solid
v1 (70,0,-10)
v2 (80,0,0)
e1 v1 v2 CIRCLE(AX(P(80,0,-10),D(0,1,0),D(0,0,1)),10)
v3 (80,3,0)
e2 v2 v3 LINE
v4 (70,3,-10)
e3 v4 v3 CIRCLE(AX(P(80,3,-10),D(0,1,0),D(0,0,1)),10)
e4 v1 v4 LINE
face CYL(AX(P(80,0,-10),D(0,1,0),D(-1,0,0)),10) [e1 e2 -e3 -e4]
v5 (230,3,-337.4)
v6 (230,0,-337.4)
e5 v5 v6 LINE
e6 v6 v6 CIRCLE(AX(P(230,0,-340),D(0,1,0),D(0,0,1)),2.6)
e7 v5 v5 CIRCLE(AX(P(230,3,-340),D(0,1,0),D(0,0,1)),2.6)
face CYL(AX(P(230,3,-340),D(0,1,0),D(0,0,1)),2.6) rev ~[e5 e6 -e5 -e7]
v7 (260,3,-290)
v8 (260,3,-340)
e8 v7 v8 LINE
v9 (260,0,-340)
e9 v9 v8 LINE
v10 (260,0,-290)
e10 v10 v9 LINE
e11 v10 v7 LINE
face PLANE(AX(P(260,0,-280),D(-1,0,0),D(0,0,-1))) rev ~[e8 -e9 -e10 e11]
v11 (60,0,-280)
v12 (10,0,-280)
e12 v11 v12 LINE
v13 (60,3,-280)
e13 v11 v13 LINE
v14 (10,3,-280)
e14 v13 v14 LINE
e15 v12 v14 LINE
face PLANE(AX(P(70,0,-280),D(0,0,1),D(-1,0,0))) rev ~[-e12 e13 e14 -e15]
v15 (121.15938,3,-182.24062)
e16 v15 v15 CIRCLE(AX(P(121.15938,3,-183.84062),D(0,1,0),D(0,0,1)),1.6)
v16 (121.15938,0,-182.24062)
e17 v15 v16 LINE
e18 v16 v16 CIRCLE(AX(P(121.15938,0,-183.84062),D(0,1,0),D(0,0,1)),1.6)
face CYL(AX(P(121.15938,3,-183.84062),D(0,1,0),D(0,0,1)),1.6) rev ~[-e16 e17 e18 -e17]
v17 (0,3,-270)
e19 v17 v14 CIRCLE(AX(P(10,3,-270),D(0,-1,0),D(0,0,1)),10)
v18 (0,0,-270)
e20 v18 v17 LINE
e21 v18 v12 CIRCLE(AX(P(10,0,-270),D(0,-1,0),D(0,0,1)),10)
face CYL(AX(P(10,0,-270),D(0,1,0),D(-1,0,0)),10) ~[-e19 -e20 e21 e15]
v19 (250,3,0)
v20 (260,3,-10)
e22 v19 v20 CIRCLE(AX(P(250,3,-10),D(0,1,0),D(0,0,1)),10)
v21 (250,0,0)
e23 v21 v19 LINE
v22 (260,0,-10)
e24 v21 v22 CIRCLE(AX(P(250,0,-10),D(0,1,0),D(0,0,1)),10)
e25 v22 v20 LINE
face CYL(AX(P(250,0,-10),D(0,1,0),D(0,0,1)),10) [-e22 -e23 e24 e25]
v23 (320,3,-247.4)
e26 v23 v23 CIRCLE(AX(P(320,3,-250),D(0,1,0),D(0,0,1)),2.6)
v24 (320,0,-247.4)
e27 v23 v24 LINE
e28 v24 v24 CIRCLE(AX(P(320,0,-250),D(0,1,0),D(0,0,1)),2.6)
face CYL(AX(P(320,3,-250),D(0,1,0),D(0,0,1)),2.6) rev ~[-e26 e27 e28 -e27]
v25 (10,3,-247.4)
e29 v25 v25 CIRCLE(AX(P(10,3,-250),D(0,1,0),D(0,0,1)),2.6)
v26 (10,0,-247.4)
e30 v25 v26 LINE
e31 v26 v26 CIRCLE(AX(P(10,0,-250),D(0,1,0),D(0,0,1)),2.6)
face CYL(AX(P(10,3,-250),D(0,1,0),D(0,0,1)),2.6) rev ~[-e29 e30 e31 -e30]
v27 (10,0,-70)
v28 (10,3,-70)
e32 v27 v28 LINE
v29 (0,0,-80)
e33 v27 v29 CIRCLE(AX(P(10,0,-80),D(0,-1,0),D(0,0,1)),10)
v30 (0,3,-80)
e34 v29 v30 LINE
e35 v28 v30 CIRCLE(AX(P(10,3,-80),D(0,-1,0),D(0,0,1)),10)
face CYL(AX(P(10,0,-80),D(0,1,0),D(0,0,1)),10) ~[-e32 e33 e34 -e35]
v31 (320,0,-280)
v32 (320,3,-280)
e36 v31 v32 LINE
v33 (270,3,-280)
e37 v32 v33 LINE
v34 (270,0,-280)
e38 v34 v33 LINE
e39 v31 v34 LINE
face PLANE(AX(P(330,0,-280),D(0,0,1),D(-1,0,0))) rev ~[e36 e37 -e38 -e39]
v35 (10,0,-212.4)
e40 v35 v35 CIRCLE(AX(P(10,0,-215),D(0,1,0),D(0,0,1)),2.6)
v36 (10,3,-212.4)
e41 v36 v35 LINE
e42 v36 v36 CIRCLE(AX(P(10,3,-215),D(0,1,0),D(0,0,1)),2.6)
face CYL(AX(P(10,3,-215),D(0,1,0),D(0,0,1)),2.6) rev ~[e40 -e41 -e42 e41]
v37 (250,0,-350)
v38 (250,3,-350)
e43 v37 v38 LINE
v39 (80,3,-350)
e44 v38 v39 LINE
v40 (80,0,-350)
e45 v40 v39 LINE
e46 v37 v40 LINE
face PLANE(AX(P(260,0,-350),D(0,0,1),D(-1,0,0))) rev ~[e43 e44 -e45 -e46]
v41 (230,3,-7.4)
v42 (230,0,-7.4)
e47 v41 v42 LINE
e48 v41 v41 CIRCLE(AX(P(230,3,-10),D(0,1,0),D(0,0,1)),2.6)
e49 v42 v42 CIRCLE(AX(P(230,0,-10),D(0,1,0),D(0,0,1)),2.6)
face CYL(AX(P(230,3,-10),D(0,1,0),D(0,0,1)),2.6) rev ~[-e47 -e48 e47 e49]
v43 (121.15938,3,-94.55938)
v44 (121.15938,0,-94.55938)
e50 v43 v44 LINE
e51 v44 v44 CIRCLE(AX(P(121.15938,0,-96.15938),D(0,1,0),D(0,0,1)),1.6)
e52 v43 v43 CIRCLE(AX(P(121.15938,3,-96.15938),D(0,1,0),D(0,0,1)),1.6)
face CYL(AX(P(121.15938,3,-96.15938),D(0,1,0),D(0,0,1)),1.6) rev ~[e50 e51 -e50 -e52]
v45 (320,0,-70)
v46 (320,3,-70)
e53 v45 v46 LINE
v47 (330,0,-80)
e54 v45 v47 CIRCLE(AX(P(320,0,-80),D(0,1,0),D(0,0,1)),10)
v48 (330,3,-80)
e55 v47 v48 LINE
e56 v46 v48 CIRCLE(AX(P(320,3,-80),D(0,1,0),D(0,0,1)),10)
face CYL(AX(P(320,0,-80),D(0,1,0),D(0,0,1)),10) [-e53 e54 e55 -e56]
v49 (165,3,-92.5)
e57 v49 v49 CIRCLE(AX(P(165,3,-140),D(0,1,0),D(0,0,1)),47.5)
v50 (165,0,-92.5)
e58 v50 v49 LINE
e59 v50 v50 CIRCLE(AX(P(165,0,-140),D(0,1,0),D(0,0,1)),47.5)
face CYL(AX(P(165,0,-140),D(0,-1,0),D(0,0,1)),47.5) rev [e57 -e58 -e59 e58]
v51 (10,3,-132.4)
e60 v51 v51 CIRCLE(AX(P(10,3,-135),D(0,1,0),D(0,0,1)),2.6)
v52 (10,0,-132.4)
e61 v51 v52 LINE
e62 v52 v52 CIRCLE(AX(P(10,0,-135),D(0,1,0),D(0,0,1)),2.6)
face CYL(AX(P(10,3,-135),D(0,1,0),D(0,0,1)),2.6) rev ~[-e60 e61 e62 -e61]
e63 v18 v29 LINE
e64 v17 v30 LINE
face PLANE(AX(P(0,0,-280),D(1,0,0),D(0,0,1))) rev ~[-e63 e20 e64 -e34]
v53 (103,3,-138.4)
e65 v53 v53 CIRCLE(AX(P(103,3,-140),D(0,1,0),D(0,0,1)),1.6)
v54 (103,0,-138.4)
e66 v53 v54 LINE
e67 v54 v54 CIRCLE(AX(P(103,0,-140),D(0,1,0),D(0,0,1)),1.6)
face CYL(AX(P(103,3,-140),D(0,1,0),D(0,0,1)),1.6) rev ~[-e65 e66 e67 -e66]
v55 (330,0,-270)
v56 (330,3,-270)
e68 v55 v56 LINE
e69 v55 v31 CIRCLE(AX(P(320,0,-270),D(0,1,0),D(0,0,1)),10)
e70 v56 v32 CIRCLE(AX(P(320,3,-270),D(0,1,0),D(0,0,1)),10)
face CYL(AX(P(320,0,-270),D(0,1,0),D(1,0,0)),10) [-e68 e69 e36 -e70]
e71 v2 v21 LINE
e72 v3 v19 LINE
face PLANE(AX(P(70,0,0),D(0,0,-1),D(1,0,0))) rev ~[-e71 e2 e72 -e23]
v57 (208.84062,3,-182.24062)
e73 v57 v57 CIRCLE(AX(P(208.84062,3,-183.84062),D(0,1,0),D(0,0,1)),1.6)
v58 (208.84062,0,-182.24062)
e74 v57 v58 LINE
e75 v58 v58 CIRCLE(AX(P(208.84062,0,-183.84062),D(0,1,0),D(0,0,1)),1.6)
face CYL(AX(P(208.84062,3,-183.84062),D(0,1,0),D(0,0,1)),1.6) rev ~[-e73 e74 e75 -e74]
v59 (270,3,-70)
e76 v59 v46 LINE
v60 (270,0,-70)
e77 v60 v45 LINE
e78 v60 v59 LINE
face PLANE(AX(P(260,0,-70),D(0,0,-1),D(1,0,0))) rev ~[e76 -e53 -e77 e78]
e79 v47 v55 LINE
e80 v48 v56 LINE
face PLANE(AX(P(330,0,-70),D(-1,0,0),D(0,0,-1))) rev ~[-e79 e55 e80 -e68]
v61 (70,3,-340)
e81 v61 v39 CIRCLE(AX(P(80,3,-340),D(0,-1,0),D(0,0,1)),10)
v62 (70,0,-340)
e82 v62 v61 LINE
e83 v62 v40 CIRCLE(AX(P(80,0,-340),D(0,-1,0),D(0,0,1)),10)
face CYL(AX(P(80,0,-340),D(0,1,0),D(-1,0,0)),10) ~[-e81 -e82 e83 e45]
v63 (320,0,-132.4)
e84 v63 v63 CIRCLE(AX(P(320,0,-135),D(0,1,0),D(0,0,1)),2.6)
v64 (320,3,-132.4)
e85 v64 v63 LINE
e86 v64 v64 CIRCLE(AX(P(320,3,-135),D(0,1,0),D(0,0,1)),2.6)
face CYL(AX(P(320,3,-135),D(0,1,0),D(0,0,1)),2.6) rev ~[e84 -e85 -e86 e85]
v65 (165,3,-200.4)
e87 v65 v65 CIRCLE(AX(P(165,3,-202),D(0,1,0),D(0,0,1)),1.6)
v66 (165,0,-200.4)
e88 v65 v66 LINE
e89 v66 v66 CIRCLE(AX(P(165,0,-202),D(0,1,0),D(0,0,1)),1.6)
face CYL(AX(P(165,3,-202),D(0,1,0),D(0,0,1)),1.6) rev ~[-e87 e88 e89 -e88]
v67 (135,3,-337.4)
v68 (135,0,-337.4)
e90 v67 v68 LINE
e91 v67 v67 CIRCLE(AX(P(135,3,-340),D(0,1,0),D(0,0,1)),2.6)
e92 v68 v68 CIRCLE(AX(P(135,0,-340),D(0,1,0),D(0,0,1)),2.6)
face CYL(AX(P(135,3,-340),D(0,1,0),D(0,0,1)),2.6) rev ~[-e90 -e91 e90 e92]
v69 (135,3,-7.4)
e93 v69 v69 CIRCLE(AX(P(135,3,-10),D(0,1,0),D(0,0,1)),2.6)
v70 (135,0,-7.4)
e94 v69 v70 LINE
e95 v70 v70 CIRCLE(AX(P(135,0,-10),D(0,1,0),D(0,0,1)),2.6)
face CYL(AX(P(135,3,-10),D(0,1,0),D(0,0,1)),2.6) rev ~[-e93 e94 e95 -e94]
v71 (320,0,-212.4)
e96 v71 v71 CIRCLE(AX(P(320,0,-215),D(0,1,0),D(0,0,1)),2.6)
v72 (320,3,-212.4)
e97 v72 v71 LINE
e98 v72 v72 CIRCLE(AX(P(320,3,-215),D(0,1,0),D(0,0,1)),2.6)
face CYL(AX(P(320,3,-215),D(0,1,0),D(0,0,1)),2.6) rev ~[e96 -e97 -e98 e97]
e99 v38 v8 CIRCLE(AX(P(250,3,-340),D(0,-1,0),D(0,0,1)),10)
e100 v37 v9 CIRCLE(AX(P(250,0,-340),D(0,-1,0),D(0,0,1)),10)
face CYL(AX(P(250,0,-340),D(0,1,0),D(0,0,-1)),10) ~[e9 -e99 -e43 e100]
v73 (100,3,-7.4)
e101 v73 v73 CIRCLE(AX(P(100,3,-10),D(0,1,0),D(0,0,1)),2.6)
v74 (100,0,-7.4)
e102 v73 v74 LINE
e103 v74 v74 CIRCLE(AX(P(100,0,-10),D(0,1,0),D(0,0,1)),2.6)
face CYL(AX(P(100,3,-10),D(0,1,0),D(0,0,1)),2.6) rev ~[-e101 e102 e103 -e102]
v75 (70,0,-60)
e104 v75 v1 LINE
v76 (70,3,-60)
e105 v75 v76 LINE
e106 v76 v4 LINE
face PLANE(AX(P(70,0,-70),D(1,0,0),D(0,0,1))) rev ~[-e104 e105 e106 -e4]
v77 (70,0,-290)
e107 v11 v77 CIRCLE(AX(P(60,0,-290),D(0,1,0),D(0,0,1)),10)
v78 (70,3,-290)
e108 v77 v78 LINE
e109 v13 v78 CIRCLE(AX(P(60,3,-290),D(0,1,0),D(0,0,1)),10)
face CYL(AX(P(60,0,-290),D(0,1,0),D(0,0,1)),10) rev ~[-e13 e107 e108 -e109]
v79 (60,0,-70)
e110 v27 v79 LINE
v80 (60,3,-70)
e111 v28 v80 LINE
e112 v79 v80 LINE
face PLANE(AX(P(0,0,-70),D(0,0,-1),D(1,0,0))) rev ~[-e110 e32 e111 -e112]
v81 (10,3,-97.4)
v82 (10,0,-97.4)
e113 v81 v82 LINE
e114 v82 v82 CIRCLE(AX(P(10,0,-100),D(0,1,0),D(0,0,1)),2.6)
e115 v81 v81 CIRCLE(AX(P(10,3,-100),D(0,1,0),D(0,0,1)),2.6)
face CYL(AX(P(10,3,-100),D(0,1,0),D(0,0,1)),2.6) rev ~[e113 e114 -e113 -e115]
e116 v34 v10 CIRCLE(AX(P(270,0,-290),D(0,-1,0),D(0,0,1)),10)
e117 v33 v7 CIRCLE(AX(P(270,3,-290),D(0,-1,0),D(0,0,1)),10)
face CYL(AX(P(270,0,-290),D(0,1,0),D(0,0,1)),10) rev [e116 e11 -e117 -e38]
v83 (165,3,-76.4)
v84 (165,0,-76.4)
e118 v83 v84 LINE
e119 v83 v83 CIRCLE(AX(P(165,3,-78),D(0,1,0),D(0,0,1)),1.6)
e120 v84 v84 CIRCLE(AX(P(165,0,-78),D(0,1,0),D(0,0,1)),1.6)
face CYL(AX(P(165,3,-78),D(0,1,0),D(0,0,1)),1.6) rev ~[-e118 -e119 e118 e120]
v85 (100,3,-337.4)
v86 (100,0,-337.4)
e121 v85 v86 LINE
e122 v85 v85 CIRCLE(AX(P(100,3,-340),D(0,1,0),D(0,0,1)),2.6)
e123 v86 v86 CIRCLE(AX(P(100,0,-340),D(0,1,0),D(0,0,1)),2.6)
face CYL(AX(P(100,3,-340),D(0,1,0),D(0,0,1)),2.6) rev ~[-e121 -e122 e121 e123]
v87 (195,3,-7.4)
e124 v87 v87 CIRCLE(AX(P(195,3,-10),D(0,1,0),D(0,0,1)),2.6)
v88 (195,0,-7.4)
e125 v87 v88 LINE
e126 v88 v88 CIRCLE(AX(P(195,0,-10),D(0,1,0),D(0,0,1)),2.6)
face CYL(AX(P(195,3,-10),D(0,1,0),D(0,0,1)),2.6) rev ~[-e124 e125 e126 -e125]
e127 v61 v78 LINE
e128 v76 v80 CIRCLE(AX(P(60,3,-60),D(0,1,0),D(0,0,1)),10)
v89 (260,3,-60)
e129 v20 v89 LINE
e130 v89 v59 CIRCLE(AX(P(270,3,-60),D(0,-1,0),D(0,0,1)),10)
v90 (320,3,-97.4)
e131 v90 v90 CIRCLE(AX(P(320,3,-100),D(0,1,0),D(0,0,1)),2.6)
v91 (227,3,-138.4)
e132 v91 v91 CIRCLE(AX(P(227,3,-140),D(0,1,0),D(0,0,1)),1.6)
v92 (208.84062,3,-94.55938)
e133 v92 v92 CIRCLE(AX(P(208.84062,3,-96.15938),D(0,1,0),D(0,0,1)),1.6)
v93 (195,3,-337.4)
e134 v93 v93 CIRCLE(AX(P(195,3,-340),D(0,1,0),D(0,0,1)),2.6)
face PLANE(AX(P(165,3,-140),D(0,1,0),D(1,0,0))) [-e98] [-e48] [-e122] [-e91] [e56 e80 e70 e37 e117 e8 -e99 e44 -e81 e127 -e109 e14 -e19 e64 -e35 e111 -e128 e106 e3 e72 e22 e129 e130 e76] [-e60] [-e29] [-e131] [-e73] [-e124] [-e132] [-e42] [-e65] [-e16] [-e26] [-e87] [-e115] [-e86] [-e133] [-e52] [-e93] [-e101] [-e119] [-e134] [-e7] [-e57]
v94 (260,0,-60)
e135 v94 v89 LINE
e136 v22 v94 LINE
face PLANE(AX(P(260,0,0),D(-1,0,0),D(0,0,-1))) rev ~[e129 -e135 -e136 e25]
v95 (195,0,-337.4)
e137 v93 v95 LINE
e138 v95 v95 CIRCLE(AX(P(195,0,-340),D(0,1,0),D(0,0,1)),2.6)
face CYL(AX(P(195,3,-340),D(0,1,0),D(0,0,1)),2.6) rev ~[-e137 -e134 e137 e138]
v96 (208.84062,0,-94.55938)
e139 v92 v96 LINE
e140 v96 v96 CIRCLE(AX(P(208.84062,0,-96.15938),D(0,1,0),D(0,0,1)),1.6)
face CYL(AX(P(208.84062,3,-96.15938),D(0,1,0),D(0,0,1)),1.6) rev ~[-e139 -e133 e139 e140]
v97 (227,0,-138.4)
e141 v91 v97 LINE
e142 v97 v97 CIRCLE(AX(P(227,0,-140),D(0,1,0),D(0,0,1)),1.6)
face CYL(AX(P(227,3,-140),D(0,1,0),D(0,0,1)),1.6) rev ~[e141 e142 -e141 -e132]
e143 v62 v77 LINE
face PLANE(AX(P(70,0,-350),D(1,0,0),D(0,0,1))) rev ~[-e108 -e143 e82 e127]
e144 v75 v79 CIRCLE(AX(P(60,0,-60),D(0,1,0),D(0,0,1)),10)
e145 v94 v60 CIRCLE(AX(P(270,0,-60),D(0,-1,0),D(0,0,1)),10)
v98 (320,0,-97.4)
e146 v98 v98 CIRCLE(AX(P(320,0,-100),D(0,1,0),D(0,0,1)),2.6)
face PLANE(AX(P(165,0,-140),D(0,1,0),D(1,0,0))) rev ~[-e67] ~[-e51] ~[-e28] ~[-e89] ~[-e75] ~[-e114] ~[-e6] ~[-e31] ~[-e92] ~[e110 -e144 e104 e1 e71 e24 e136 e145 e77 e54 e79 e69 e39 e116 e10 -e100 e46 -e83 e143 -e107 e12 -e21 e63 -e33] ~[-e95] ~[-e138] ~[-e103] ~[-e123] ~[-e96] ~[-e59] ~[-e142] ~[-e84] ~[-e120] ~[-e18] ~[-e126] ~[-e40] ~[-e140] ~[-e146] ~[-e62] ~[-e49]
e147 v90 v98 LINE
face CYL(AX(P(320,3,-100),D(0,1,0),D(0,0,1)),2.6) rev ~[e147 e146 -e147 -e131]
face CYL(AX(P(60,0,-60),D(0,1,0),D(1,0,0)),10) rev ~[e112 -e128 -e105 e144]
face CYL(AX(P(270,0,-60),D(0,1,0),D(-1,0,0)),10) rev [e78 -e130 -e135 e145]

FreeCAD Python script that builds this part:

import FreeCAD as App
import Part
import Sketcher


def edges_at(feature, points):
    """Names of the edges that pass closest to the given points."""
    edges = feature.Shape.Edges
    near = lambda p: min(range(len(edges)), key=lambda i: edges[i].distToShape(Part.Vertex(*p))[0])
    return sorted({f"Edge{near(p) + 1}" for p in points})


def add_polygon(sketch, points):
    """Adds a closed chain of lines whose ends are joined by coincident constraints."""
    first, n = sketch.GeometryCount, len(points)
    for a, b in zip(points, points[1:] + points[:1]):
        sketch.addGeometry(Part.LineSegment(App.Vector(*a, 0), App.Vector(*b, 0)), False)
    for i in range(n):
        sketch.addConstraint(Sketcher.Constraint("Coincident", first + i, 2, first + (i + 1) % n, 1))

doc = App.newDocument("Part")
body = doc.addObject("PartDesign::Body", "Body")

# Sketch on XZ plane
sketch1 = body.newObject("Sketcher::SketchObject", "Sketch")
sketch1.AttachmentSupport = (doc.getObject("XZ_Plane"), [""])
sketch1.MapMode = "FlatFace"
add_polygon(sketch1, [(70, -70), (70, 0), (260, 0), (260, -70), (330, -70), (330, -280), (260, -280), (260, -350), (70, -350), (70, -280), (0, -280), (0, -70)])  # lines 0-11
sketch1.addGeometry(Part.Circle(App.Vector(165, -140, 0), App.Vector(0, 0, 1), 56), False)  # 12
sketch1.addConstraint([
    Sketcher.Constraint("Vertical", 0),
    Sketcher.Constraint("Horizontal", 1),
    Sketcher.Constraint("Vertical", 2),
    Sketcher.Constraint("Horizontal", 3),
    Sketcher.Constraint("Vertical", 4),
    Sketcher.Constraint("Horizontal", 5),
    Sketcher.Constraint("Vertical", 6),
    Sketcher.Constraint("Horizontal", 7),
    Sketcher.Constraint("Vertical", 8),
    Sketcher.Constraint("Horizontal", 9),
    Sketcher.Constraint("Vertical", 10),
    Sketcher.Constraint("Horizontal", 11),
    Sketcher.Constraint("PointOnObject", 0, 2, -1),
    Sketcher.Constraint("PointOnObject", 9, 2, -2),
    Sketcher.Constraint("Horizontal", 5, 2, 8, 2),
    Sketcher.Constraint("Horizontal", 3, 2, 10, 2),
    Sketcher.Constraint("Vertical", 2, 2, 5, 2),
    Sketcher.Constraint("Vertical", 0, 2, 7, 2),
    Sketcher.Constraint("Equal", 5, 9),
    Sketcher.Constraint("Equal", 11, 0),
    Sketcher.Constraint("Equal", 2, 6),
    Sketcher.Constraint("Diameter", 12, 112.0),
    Sketcher.Constraint("DistanceX", 1, 1, 1, 2, 190.0),
    Sketcher.Constraint("DistanceX", 3, 1, 3, 2, 70.0),
    Sketcher.Constraint("DistanceY", 4, 2, 4, 1, 210.0),
    Sketcher.Constraint("DistanceX", -1, 1, 12, 3, 165.0),
    Sketcher.Constraint("DistanceY", 12, 3, -1, 1, 140.0),
])
pad1 = body.newObject("PartDesign::Pad", "Pad")
pad1.Profile = sketch1
pad1.Length = 3
pad1.Reversed = True
doc.recompute()

fillet = body.newObject("PartDesign::Fillet", "Fillet")
fillet.Base = (pad1, edges_at(pad1, [
    (70, 1.5, 0),
    (70, 1.5, -70),
    (0, 1.5, -70),
    (0, 1.5, -280),
    (70, 1.5, -280),
    (70, 1.5, -350),
    (260, 1.5, -350),
    (260, 1.5, -280),
    (330, 1.5, -280),
    (330, 1.5, -70),
    (260, 1.5, -70),
    (260, 1.5, 0),
]))
fillet.Radius = 10

# Sketch on XZ plane
sketch2 = body.newObject("Sketcher::SketchObject", "Sketch001")
sketch2.AttachmentSupport = (doc.getObject("XZ_Plane"), [""])
sketch2.MapMode = "FlatFace"
sketch2.AttachmentOffset = App.Placement(App.Vector(0, 0, -3), App.Rotation())
sketch2.addGeometry([
    Part.Circle(App.Vector(100, -340, 0), App.Vector(0, 0, 1), 2.6),  # 0
    Part.Circle(App.Vector(135, -340, 0), App.Vector(0, 0, 1), 2.6),  # 1
    Part.Circle(App.Vector(195, -340, 0), App.Vector(0, 0, 1), 2.6),  # 2
    Part.Circle(App.Vector(230, -340, 0), App.Vector(0, 0, 1), 2.6),  # 3
    Part.Circle(App.Vector(10, -250, 0), App.Vector(0, 0, 1), 2.6),  # 4
    Part.Circle(App.Vector(10, -215, 0), App.Vector(0, 0, 1), 2.6),  # 5
    Part.Circle(App.Vector(10, -100, 0), App.Vector(0, 0, 1), 2.6),  # 6
    Part.Circle(App.Vector(10, -135, 0), App.Vector(0, 0, 1), 2.6),  # 7
    Part.Circle(App.Vector(100, -10, 0), App.Vector(0, 0, 1), 2.6),  # 8
    Part.Circle(App.Vector(135, -10, 0), App.Vector(0, 0, 1), 2.6),  # 9
    Part.Circle(App.Vector(195, -10, 0), App.Vector(0, 0, 1), 2.6),  # 10
    Part.Circle(App.Vector(230, -10, 0), App.Vector(0, 0, 1), 2.6),  # 11
    Part.Circle(App.Vector(320, -100, 0), App.Vector(0, 0, 1), 2.6),  # 12
    Part.Circle(App.Vector(320, -135, 0), App.Vector(0, 0, 1), 2.6),  # 13
    Part.Circle(App.Vector(320, -250, 0), App.Vector(0, 0, 1), 2.6),  # 14
    Part.Circle(App.Vector(320, -215, 0), App.Vector(0, 0, 1), 2.6),  # 15
    Part.Circle(App.Vector(165, -202, 0), App.Vector(0, 0, 1), 1.6),  # 16
    Part.Circle(App.Vector(208.8, -183.8, 0), App.Vector(0, 0, 1), 1.6),  # 17
    Part.Circle(App.Vector(227, -140, 0), App.Vector(0, 0, 1), 1.6),  # 18
    Part.Circle(App.Vector(208.8, -96.2, 0), App.Vector(0, 0, 1), 1.6),  # 19
    Part.Circle(App.Vector(165, -78, 0), App.Vector(0, 0, 1), 1.6),  # 20
    Part.Circle(App.Vector(121.2, -96.2, 0), App.Vector(0, 0, 1), 1.6),  # 21
    Part.Circle(App.Vector(103, -140, 0), App.Vector(0, 0, 1), 1.6),  # 22
    Part.Circle(App.Vector(121.2, -183.8, 0), App.Vector(0, 0, 1), 1.6),  # 23
], False)
sketch2.addConstraint([
    Sketcher.Constraint("Equal", 0, 1),
    Sketcher.Constraint("Equal", 1, 2),
    Sketcher.Constraint("Equal", 2, 3),
    Sketcher.Constraint("Equal", 3, 4),
    Sketcher.Constraint("Equal", 4, 5),
    Sketcher.Constraint("Equal", 5, 6),
    Sketcher.Constraint("Equal", 6, 7),
    Sketcher.Constraint("Equal", 7, 8),
    Sketcher.Constraint("Equal", 8, 9),
    Sketcher.Constraint("Equal", 9, 10),
    Sketcher.Constraint("Equal", 10, 11),
    Sketcher.Constraint("Equal", 11, 12),
    Sketcher.Constraint("Equal", 12, 13),
    Sketcher.Constraint("Equal", 13, 14),
    Sketcher.Constraint("Equal", 14, 15),
    Sketcher.Constraint("Equal", 16, 17),
    Sketcher.Constraint("Equal", 17, 18),
    Sketcher.Constraint("Equal", 18, 19),
    Sketcher.Constraint("Equal", 19, 20),
    Sketcher.Constraint("Equal", 20, 21),
    Sketcher.Constraint("Equal", 21, 22),
    Sketcher.Constraint("Equal", 22, 23),
    Sketcher.Constraint("Horizontal", 0, 3, 1, 3),
    Sketcher.Constraint("Horizontal", 1, 3, 2, 3),
    Sketcher.Constraint("Horizontal", 2, 3, 3, 3),
    Sketcher.Constraint("Horizontal", 8, 3, 9, 3),
    Sketcher.Constraint("Horizontal", 9, 3, 10, 3),
    Sketcher.Constraint("Horizontal", 10, 3, 11, 3),
    Sketcher.Constraint("Horizontal", 6, 3, 12, 3),
    Sketcher.Constraint("Horizontal", 7, 3, 13, 3),
    Sketcher.Constraint("Horizontal", 4, 3, 14, 3),
    Sketcher.Constraint("Horizontal", 5, 3, 15, 3),
    Sketcher.Constraint("Horizontal", 19, 3, 21, 3),
    Sketcher.Constraint("Horizontal", 18, 3, 22, 3),
    Sketcher.Constraint("Horizontal", 17, 3, 23, 3),
    Sketcher.Constraint("Vertical", 4, 3, 5, 3),
    Sketcher.Constraint("Vertical", 5, 3, 6, 3),
    Sketcher.Constraint("Vertical", 6, 3, 7, 3),
    Sketcher.Constraint("Vertical", 0, 3, 8, 3),
    Sketcher.Constraint("Vertical", 1, 3, 9, 3),
    Sketcher.Constraint("Vertical", 2, 3, 10, 3),
    Sketcher.Constraint("Vertical", 3, 3, 11, 3),
    Sketcher.Constraint("Vertical", 12, 3, 13, 3),
    Sketcher.Constraint("Vertical", 13, 3, 14, 3),
    Sketcher.Constraint("Vertical", 14, 3, 15, 3),
    Sketcher.Constraint("Vertical", 17, 3, 19, 3),
    Sketcher.Constraint("Vertical", 16, 3, 20, 3),
    Sketcher.Constraint("Vertical", 21, 3, 23, 3),
    Sketcher.Constraint("Diameter", 0, 5.2),
    Sketcher.Constraint("Diameter", 16, 3.2),
    Sketcher.Constraint("DistanceX", -1, 1, 0, 3, 100.0),
    Sketcher.Constraint("DistanceY", 0, 3, -1, 1, 340.0),
    Sketcher.Constraint("DistanceX", -1, 1, 1, 3, 135.0),
    Sketcher.Constraint("DistanceX", -1, 1, 2, 3, 195.0),
    Sketcher.Constraint("DistanceX", -1, 1, 3, 3, 230.0),
    Sketcher.Constraint("DistanceX", -1, 1, 4, 3, 10.0),
    Sketcher.Constraint("DistanceY", 4, 3, -1, 1, 250.0),
    Sketcher.Constraint("DistanceY", 5, 3, -1, 1, 215.0),
    Sketcher.Constraint("DistanceY", 6, 3, -1, 1, 100.0),
    Sketcher.Constraint("DistanceY", 7, 3, -1, 1, 135.0),
    Sketcher.Constraint("DistanceY", 8, 3, -1, 1, 10.0),
    Sketcher.Constraint("DistanceX", -1, 1, 12, 3, 320.0),
    Sketcher.Constraint("DistanceX", -1, 1, 16, 3, 165.0),
    Sketcher.Constraint("DistanceY", 16, 3, -1, 1, 202.0),
    Sketcher.Constraint("DistanceX", -1, 1, 18, 3, 227.0),
    Sketcher.Constraint("DistanceY", 18, 3, -1, 1, 140.0),
    Sketcher.Constraint("DistanceY", 20, 3, -1, 1, 78.0),
    Sketcher.Constraint("DistanceX", -1, 1, 22, 3, 103.0),
    Sketcher.Constraint("DistanceX", -1, 1, 17, 3, 208.84062),
    Sketcher.Constraint("DistanceY", 17, 3, -1, 1, 183.84062),
    Sketcher.Constraint("DistanceY", 19, 3, -1, 1, 96.15938),
    Sketcher.Constraint("DistanceX", -1, 1, 21, 3, 121.15938),
])
pocket1 = body.newObject("PartDesign::Pocket", "Pocket")
pocket1.Profile = sketch2
pocket1.Type = "ThroughAll"
pocket1.Reversed = True

# Sketch on XZ plane
sketch3 = body.newObject("Sketcher::SketchObject", "Sketch002")
sketch3.AttachmentSupport = (doc.getObject("XZ_Plane"), [""])
sketch3.MapMode = "FlatFace"
sketch3.addGeometry([
    Part.Circle(App.Vector(165, -140, 0), App.Vector(0, 0, 1), 56),
    Part.Circle(App.Vector(165, -140, 0), App.Vector(0, 0, 1), 48),
], False)
sketch3.addConstraint([
    Sketcher.Constraint("Coincident", 1, 3, 0, 3),
    Sketcher.Constraint("Diameter", 0, 112.0),
    Sketcher.Constraint("Diameter", 1, 95.0),
    Sketcher.Constraint("DistanceX", -1, 1, 0, 3, 165.0),
    Sketcher.Constraint("DistanceY", 0, 3, -1, 1, 140.0),
])
pad2 = body.newObject("PartDesign::Pad", "Pad001")
pad2.Profile = sketch3
pad2.Length = 3
pad2.Reversed = True

doc.recompute()
